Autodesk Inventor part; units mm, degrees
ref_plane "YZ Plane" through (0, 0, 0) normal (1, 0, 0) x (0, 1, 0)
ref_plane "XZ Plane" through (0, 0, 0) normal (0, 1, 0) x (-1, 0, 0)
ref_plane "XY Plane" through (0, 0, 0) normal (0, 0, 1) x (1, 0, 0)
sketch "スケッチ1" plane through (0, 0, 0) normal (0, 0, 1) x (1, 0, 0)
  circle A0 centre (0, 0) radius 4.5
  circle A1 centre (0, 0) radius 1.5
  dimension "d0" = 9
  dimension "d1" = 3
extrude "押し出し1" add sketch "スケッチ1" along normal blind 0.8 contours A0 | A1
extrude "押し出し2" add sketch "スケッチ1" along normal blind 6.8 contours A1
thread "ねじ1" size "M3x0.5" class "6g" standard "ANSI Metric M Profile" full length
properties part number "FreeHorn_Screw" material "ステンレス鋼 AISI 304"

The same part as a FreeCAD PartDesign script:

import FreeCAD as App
import Part
import Sketcher
from FreeCAD import Vector

doc = App.newDocument("Part")
body = doc.addObject("PartDesign::Body", "Body")

# Sketch on XY plane
sketch1 = body.newObject("Sketcher::SketchObject", "Sketch")
sketch1.AttachmentSupport = (doc.getObject("XY_Plane"), [""])
sketch1.MapMode = "FlatFace"
sketch1.addGeometry(Part.Circle(Vector(0, 0, 0), Vector(0, 0, 1), 4.5), False)
sketch1.addConstraint([
    Sketcher.Constraint("Coincident", 0, 3, -1, 1),
    Sketcher.Constraint("Diameter", 0, 9.0),
])
pad1 = body.newObject("PartDesign::Pad", "Pad")
pad1.Profile = sketch1
pad1.Length = 0.8

# Sketch on XY plane
sketch2 = body.newObject("Sketcher::SketchObject", "Sketch001")
sketch2.AttachmentSupport = (doc.getObject("XY_Plane"), [""])
sketch2.MapMode = "FlatFace"
sketch2.addGeometry(Part.Circle(Vector(0, 0, 0), Vector(0, 0, 1), 1.5), False)
sketch2.addConstraint([
    Sketcher.Constraint("Coincident", 0, 3, -1, 1),
    Sketcher.Constraint("Diameter", 0, 3.0),
])
pad2 = body.newObject("PartDesign::Pad", "Pad001")
pad2.Profile = sketch2
pad2.Length = 6.8

doc.recompute()
